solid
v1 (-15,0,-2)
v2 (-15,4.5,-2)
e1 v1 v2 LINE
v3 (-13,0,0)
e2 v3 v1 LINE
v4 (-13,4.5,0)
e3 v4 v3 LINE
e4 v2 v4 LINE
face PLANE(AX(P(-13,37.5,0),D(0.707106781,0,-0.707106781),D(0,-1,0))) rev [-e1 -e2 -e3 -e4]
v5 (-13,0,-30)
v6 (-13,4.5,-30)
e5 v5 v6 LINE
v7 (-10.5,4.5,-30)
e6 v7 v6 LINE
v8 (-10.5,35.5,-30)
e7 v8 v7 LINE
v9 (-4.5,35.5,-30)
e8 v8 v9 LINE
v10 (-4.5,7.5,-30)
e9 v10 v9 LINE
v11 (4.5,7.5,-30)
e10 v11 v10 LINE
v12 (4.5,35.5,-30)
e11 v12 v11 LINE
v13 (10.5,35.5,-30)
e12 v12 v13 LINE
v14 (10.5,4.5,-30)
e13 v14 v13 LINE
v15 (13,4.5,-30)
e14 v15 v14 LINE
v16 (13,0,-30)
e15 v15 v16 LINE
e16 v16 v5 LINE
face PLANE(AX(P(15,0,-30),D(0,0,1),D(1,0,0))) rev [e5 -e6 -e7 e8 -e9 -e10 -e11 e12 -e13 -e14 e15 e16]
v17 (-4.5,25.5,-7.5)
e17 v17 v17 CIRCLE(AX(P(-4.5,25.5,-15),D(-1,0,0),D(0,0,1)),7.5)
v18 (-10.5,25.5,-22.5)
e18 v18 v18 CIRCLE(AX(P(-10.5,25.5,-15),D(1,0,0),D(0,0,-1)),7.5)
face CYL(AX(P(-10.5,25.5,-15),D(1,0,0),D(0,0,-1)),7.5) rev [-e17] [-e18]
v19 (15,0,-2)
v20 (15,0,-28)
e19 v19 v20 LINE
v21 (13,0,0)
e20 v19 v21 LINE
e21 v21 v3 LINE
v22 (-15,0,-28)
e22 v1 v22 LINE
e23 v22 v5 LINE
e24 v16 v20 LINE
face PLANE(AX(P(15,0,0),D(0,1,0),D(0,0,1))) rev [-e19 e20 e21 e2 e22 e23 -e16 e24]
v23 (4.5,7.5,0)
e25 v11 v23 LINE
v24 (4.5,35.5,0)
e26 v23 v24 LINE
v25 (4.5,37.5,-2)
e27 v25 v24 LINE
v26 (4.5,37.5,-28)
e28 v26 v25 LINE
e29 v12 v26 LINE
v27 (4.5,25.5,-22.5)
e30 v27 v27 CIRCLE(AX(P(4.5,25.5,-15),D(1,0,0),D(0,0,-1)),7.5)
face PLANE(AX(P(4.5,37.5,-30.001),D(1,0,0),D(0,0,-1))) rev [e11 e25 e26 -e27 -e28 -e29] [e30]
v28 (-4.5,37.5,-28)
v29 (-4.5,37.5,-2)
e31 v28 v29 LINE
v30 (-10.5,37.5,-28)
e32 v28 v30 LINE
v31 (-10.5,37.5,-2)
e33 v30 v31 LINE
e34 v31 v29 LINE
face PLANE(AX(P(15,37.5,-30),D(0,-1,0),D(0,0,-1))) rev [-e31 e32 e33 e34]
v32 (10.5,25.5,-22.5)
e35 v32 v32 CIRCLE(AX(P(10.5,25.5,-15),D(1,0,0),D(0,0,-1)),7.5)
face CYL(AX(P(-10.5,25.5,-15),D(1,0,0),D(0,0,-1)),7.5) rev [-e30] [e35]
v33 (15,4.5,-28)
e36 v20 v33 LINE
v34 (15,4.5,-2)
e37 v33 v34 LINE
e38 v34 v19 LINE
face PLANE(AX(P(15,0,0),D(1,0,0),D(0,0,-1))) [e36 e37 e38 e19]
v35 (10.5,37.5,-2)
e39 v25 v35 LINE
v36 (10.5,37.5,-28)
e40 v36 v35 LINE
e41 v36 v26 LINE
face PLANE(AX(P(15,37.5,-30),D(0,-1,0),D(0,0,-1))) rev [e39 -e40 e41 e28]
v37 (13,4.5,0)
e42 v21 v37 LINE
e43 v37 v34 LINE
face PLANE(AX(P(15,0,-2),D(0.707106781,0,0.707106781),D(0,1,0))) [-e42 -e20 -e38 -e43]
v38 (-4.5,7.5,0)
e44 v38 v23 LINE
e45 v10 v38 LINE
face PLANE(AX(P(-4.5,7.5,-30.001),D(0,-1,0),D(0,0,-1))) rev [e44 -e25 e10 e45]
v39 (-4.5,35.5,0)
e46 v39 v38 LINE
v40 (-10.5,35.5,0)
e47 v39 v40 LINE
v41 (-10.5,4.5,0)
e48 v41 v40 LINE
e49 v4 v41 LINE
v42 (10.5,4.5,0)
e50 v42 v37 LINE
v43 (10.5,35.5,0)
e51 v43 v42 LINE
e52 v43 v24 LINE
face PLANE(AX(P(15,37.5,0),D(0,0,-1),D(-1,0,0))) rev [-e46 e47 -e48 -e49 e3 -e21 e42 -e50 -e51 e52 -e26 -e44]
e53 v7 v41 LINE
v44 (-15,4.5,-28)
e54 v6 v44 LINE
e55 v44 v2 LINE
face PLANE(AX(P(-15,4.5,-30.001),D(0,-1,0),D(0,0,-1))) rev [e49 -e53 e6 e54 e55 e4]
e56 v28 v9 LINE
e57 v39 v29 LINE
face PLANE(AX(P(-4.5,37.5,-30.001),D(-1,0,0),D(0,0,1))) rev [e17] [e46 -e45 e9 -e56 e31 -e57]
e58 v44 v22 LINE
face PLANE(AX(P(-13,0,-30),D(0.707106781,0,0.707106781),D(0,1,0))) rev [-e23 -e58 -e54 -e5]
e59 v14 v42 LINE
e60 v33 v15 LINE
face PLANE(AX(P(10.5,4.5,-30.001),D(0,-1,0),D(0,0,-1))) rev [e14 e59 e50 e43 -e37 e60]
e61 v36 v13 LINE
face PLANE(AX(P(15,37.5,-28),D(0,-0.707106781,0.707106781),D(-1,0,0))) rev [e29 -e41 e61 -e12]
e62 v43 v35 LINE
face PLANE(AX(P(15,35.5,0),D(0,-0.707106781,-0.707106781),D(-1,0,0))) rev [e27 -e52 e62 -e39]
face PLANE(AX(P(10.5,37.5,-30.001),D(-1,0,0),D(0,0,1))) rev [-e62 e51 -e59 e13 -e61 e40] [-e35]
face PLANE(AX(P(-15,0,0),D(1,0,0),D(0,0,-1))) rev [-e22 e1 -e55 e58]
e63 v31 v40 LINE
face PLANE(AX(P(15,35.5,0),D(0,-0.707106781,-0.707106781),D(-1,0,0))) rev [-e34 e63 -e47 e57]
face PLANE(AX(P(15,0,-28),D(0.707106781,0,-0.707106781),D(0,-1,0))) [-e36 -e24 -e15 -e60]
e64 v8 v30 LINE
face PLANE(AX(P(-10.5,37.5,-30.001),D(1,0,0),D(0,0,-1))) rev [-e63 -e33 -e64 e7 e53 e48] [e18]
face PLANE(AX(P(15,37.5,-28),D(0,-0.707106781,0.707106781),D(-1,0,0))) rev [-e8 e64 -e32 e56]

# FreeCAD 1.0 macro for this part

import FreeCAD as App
import Part
import Sketcher
from FreeCAD import Vector


def edges_at(feature, points):
    """Names of the edges that pass closest to the given points."""
    edges = feature.Shape.Edges
    near = lambda p: min(range(len(edges)), key=lambda i: edges[i].distToShape(Part.Vertex(*p))[0])
    return sorted({f"Edge{near(p) + 1}" for p in points})


def add_polygon(sketch, points):
    """Adds a closed chain of lines whose ends are joined by coincident constraints."""
    first, n = sketch.GeometryCount, len(points)
    for a, b in zip(points, points[1:] + points[:1]):
        sketch.addGeometry(Part.LineSegment(App.Vector(*a, 0), App.Vector(*b, 0)), False)
    for i in range(n):
        sketch.addConstraint(Sketcher.Constraint("Coincident", first + i, 2, first + (i + 1) % n, 1))

doc = App.newDocument("Part")
body = doc.addObject("PartDesign::Body", "Body")

# Sketch on YZ plane
sketch1 = body.newObject("Sketcher::SketchObject", "Sketch")
sketch1.AttachmentSupport = (doc.getObject("YZ_Plane"), [""])
sketch1.MapMode = "FlatFace"
add_polygon(sketch1, [(37.5, 0), (0, 0), (0, -30), (37.5, -30)])  # lines 0-3
sketch1.addConstraint(Sketcher.Constraint("Horizontal", 0))
sketch1.addConstraint(Sketcher.Constraint("Vertical", 1))
sketch1.addConstraint(Sketcher.Constraint("Horizontal", 2))
sketch1.addConstraint(Sketcher.Constraint("Vertical", 3))
sketch1.addConstraint(Sketcher.Constraint("Coincident", 0, 2, -1, 1))
sketch1.addConstraint(Sketcher.Constraint("DistanceY", 1, 2, 1, 1, 30.0))
sketch1.addConstraint(Sketcher.Constraint("DistanceX", 0, 2, 0, 1, 37.5))
pad1 = body.newObject("PartDesign::Pad", "Pad")
pad1.Profile = sketch1
pad1.Length = 30
pad1.Midplane = True
doc.recompute()

chamfer = body.newObject("PartDesign::Chamfer", "Chamfer")
chamfer.Base = (pad1, edges_at(pad1, [(0, 37.5, 0), (0, 37.5, -30)]))
chamfer.Size = 2

# Sketch on XY plane
sketch2 = body.newObject("Sketcher::SketchObject", "Sketch001")
sketch2.AttachmentSupport = (doc.getObject("XY_Plane"), [""])
sketch2.MapMode = "FlatFace"
add_polygon(sketch2, [(-15, 37.5), (-15, 4.5), (-10.5, 4.5), (-10.5, 37.5)])  # lines 0-3
sketch2.addConstraint(Sketcher.Constraint("Vertical", 0))
sketch2.addConstraint(Sketcher.Constraint("Horizontal", 1))
sketch2.addConstraint(Sketcher.Constraint("Vertical", 2))
sketch2.addConstraint(Sketcher.Constraint("Horizontal", 3))
sketch2.addConstraint(Sketcher.Constraint("DistanceY", 0, 2, 0, 1, 33.0))
sketch2.addConstraint(Sketcher.Constraint("DistanceX", 1, 1, 1, 2, 4.5))
sketch2.addConstraint(Sketcher.Constraint("DistanceX", 0, 2, -1, 1, 15.0))
sketch2.addConstraint(Sketcher.Constraint("DistanceY", -1, 1, 0, 2, 4.5))
pocket1 = body.newObject("PartDesign::Pocket", "Pocket")
pocket1.Profile = sketch2
pocket1.Type = "UpToFirst"

# Sketch on XY plane
sketch3 = body.newObject("Sketcher::SketchObject", "Sketch002")
sketch3.AttachmentSupport = (doc.getObject("XY_Plane"), [""])
sketch3.MapMode = "FlatFace"
add_polygon(sketch3, [(10.5, 37.5), (10.5, 4.5), (15, 4.5), (15, 37.5)])  # lines 0-3
sketch3.addConstraint(Sketcher.Constraint("Vertical", 0))
sketch3.addConstraint(Sketcher.Constraint("Horizontal", 1))
sketch3.addConstraint(Sketcher.Constraint("Vertical", 2))
sketch3.addConstraint(Sketcher.Constraint("Horizontal", 3))
sketch3.addConstraint(Sketcher.Constraint("DistanceY", 0, 2, 0, 1, 33.0))
sketch3.addConstraint(Sketcher.Constraint("DistanceX", 1, 1, 1, 2, 4.5))
sketch3.addConstraint(Sketcher.Constraint("DistanceX", -1, 1, 1, 2, 15.0))
sketch3.addConstraint(Sketcher.Constraint("DistanceY", -1, 1, 0, 2, 4.5))
pocket2 = body.newObject("PartDesign::Pocket", "Pocket001")
pocket2.Profile = sketch3
pocket2.Type = "UpToFirst"

# Sketch on XY plane
sketch4 = body.newObject("Sketcher::SketchObject", "Sketch003")
sketch4.AttachmentSupport = (doc.getObject("XY_Plane"), [""])
sketch4.MapMode = "FlatFace"
add_polygon(sketch4, [(-4.5, 37.5), (-4.5, 7.5), (4.5, 7.5), (4.5, 37.5)])  # lines 0-3
sketch4.addConstraint(Sketcher.Constraint("Vertical", 0))
sketch4.addConstraint(Sketcher.Constraint("Horizontal", 1))
sketch4.addConstraint(Sketcher.Constraint("Vertical", 2))
sketch4.addConstraint(Sketcher.Constraint("Horizontal", 3))
sketch4.addConstraint(Sketcher.Constraint("DistanceX", 1, 1, 1, 2, 9.0))
sketch4.addConstraint(Sketcher.Constraint("DistanceY", 0, 2, 0, 1, 30.0))
sketch4.addConstraint(Sketcher.Constraint("DistanceX", 0, 2, -1, 1, 4.5))
sketch4.addConstraint(Sketcher.Constraint("DistanceY", -1, 1, 0, 2, 7.5))
pocket3 = body.newObject("PartDesign::Pocket", "Pocket002")
pocket3.Profile = sketch4
pocket3.Type = "UpToFirst"

# Sketch on YZ plane
sketch5 = body.newObject("Sketcher::SketchObject", "Sketch004")
sketch5.AttachmentSupport = (doc.getObject("YZ_Plane"), [""])
sketch5.MapMode = "FlatFace"
sketch5.addGeometry(Part.Circle(Vector(25.5, -15, 0), Vector(0, 0, 1), 7.5), False)
sketch5.addConstraint(Sketcher.Constraint("Diameter", 0, 15.0))
sketch5.addConstraint(Sketcher.Constraint("DistanceY", 0, 3, -1, 1, 15.0))
sketch5.addConstraint(Sketcher.Constraint("DistanceX", -1, 1, 0, 3, 25.5))
pocket4 = body.newObject("PartDesign::Pocket", "Pocket003")
pocket4.Profile = sketch5
pocket4.Length = 21
pocket4.Midplane = True
doc.recompute()

chamfer2 = body.newObject("PartDesign::Chamfer", "Chamfer001")
chamfer2.Base = (pocket4, edges_at(pocket4, [
    (15, 2.25, -30),
    (-15, 2.25, 0),
    (15, 2.25, 0),
    (-15, 2.25, -30),
]))
chamfer2.Size = 2

doc.recompute()
